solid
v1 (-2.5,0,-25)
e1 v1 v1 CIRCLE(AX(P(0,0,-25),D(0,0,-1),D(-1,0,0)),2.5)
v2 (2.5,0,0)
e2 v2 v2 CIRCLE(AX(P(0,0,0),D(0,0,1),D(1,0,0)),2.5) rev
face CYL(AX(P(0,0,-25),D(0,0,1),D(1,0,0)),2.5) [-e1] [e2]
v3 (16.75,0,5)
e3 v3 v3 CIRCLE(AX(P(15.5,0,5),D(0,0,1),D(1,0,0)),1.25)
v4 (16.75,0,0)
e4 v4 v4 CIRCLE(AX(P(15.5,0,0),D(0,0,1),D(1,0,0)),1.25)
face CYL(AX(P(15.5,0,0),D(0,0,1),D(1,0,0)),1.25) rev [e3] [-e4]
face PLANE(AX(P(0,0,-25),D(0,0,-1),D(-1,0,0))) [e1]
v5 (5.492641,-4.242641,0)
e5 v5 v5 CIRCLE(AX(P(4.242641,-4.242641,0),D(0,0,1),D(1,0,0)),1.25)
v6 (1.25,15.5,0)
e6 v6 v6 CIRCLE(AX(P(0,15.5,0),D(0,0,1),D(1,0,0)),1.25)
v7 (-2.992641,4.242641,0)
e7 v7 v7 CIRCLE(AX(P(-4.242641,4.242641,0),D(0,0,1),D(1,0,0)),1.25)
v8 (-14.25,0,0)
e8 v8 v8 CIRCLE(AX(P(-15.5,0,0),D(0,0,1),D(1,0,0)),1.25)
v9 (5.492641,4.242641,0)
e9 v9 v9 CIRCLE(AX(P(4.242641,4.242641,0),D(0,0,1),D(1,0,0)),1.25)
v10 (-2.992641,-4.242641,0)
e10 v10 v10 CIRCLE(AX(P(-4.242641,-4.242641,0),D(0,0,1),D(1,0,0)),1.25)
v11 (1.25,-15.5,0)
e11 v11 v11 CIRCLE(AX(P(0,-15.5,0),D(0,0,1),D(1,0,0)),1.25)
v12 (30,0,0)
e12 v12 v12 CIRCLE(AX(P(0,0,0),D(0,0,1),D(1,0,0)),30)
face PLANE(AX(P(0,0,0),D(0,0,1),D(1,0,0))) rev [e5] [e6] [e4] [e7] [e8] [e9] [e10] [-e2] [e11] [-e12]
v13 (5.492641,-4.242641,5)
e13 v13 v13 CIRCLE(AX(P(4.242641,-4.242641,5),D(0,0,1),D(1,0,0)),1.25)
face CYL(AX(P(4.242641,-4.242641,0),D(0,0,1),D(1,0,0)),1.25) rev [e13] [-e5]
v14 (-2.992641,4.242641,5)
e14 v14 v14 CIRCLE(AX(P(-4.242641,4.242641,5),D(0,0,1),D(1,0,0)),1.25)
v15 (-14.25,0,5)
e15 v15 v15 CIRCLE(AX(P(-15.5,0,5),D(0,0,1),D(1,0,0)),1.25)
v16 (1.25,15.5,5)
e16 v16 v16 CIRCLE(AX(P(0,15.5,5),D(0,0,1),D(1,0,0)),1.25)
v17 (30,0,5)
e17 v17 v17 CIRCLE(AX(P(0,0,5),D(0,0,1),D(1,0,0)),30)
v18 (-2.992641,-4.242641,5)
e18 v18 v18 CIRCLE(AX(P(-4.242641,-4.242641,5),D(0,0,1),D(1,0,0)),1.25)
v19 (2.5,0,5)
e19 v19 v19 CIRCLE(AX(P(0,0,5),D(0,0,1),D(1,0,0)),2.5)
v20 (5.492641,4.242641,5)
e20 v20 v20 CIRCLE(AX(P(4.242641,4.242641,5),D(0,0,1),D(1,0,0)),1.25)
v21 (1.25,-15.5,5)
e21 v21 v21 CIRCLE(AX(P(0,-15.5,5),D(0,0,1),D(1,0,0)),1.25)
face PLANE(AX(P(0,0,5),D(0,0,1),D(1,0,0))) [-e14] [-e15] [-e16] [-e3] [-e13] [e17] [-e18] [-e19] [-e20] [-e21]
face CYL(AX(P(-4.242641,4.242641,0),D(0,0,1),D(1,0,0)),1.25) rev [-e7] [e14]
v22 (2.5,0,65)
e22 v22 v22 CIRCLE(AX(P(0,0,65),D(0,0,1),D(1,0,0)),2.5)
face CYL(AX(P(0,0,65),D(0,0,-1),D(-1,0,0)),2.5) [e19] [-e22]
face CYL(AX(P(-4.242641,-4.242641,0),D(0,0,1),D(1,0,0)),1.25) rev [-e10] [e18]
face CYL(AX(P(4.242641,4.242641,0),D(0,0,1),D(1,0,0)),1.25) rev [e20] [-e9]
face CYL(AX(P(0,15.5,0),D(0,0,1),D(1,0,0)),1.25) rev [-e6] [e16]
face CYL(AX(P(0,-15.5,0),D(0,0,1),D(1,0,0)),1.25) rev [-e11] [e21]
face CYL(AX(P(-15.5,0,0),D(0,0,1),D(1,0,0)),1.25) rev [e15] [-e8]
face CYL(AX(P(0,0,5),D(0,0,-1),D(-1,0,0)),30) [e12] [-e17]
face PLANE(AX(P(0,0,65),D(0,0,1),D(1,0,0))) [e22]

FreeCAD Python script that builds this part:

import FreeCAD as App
import Part
import Sketcher

doc = App.newDocument("Part")
params = doc.addObject("Spreadsheet::Sheet", "Params")
for row, (alias, value) in enumerate([
    ("sketch1_diameter", "60 mm"),
    ("pad1_length", "5 mm"),
    ("sketch2_diameter", "2.5 mm"),
    ("pocket1_length", "5 mm"),
    ("sketch3_diameter", "5 mm"),
    ("pad2_length", "25 mm"),
    ("sketch4_diameter", "5 mm"),
    ("pad3_length", "60 mm"),
], start=1):
    params.set(f"A{row}", alias)
    params.set(f"B{row}", "=" + value)
    params.setAlias(f"B{row}", alias)

body = doc.addObject("PartDesign::Body", "Body")

sketch1 = doc.addObject("Sketcher::SketchObject", "Sketch")
body.addObject(sketch1)
sketch1.AttachmentSupport = (doc.XY_Plane, [""])
sketch1.MapMode = "FlatFace"
sketch1.addGeometry(Part.Circle(App.Vector(0, 0, 0), App.Vector(0, 0, 1), 30), False)
sketch1.addConstraint(Sketcher.Constraint("Coincident", 0, 3, -1, 1))
sketch1.addConstraint(Sketcher.Constraint("Diameter", 0, 60.0))
sketch1.setExpression("Constraints[1]", "Params.sketch1_diameter")
pad1 = doc.addObject("PartDesign::Pad", "Pad")
body.addObject(pad1)
pad1.Profile = sketch1
pad1.setExpression("Length", "Params.pad1_length")

sketch2 = doc.addObject("Sketcher::SketchObject", "Sketch001")
body.addObject(sketch2)
sketch2.AttachmentSupport = (doc.XY_Plane, [""])
sketch2.MapMode = "FlatFace"
sketch2.AttachmentOffset = App.Placement(App.Vector(0, 0, 5), App.Rotation())
sketch2.addGeometry(Part.Circle(App.Vector(0, 15.5, 0), App.Vector(0, 0, 1), 1.2), False)
sketch2.addGeometry(Part.Circle(App.Vector(15.5, 0, 0), App.Vector(0, 0, 1), 1.2), False)
sketch2.addGeometry(Part.Circle(App.Vector(0, -15.5, 0), App.Vector(0, 0, 1), 1.2), False)
sketch2.addGeometry(Part.Circle(App.Vector(-15.5, 0, 0), App.Vector(0, 0, 1), 1.2), False)
sketch2.addGeometry(Part.Circle(App.Vector(4.2, 4.2, 0), App.Vector(0, 0, 1), 1.2), False)
sketch2.addGeometry(Part.Circle(App.Vector(4.2, -4.2, 0), App.Vector(0, 0, 1), 1.2), False)
sketch2.addGeometry(Part.Circle(App.Vector(-4.2, -4.2, 0), App.Vector(0, 0, 1), 1.2), False)
sketch2.addGeometry(Part.Circle(App.Vector(-4.2, 4.2, 0), App.Vector(0, 0, 1), 1.2), False)
sketch2.addConstraint(Sketcher.Constraint("Equal", 0, 1))
sketch2.addConstraint(Sketcher.Constraint("Equal", 1, 2))
sketch2.addConstraint(Sketcher.Constraint("Equal", 2, 3))
sketch2.addConstraint(Sketcher.Constraint("Equal", 3, 4))
sketch2.addConstraint(Sketcher.Constraint("Equal", 4, 5))
sketch2.addConstraint(Sketcher.Constraint("Equal", 5, 6))
sketch2.addConstraint(Sketcher.Constraint("Equal", 6, 7))
sketch2.addConstraint(Sketcher.Constraint("Symmetric", 0, 3, 2, 3, -1, 1))
sketch2.addConstraint(Sketcher.Constraint("Symmetric", 1, 3, 3, 3, -1, 1))
sketch2.addConstraint(Sketcher.Constraint("Symmetric", 4, 3, 6, 3, -1, 1))
sketch2.addConstraint(Sketcher.Constraint("Symmetric", 5, 3, 7, 3, -1, 1))
sketch2.addConstraint(Sketcher.Constraint("Symmetric", 5, 3, 6, 3, -2))
sketch2.addConstraint(Sketcher.Constraint("PointOnObject", 0, 3, -2))
sketch2.addConstraint(Sketcher.Constraint("PointOnObject", 1, 3, -1))
sketch2.addConstraint(Sketcher.Constraint("Diameter", 0, 2.5))
sketch2.addConstraint(Sketcher.Constraint("DistanceY", 2, 3, 0, 3, 31.0))
sketch2.addConstraint(Sketcher.Constraint("DistanceX", 3, 3, 1, 3, 31.0))
sketch2.addConstraint(Sketcher.Constraint("DistanceX", -1, 1, 4, 3, 4.242641))
sketch2.addConstraint(Sketcher.Constraint("DistanceY", -1, 1, 4, 3, 4.242641))
sketch2.setExpression("Constraints[14]", "Params.sketch2_diameter")
pocket1 = doc.addObject("PartDesign::Pocket", "Pocket")
body.addObject(pocket1)
pocket1.Profile = sketch2
pocket1.setExpression("Length", "Params.pocket1_length")

sketch3 = doc.addObject("Sketcher::SketchObject", "Sketch002")
body.addObject(sketch3)
sketch3.AttachmentSupport = (doc.XY_Plane, [""])
sketch3.MapMode = "FlatFace"
sketch3.addGeometry(Part.Circle(App.Vector(0, 0, 0), App.Vector(0, 0, 1), 2.5), False)
sketch3.addConstraint(Sketcher.Constraint("Coincident", 0, 3, -1, 1))
sketch3.addConstraint(Sketcher.Constraint("Diameter", 0, 5.0))
sketch3.setExpression("Constraints[1]", "Params.sketch3_diameter")
pad2 = doc.addObject("PartDesign::Pad", "Pad001")
body.addObject(pad2)
pad2.Profile = sketch3
pad2.setExpression("Length", "Params.pad2_length")
pad2.Reversed = True

sketch4 = doc.addObject("Sketcher::SketchObject", "Sketch003")
body.addObject(sketch4)
sketch4.AttachmentSupport = (doc.XY_Plane, [""])
sketch4.MapMode = "FlatFace"
sketch4.AttachmentOffset = App.Placement(App.Vector(0, 0, 65), App.Rotation())
sketch4.addGeometry(Part.Circle(App.Vector(0, 0, 0), App.Vector(0, 0, 1), 2.5), False)
sketch4.addConstraint(Sketcher.Constraint("Coincident", 0, 3, -1, 1))
sketch4.addConstraint(Sketcher.Constraint("Diameter", 0, 5.0))
sketch4.setExpression("Constraints[1]", "Params.sketch4_diameter")
pad3 = doc.addObject("PartDesign::Pad", "Pad002")
body.addObject(pad3)
pad3.Profile = sketch4
pad3.setExpression("Length", "Params.pad3_length")
pad3.Reversed = True

doc.recompute()
